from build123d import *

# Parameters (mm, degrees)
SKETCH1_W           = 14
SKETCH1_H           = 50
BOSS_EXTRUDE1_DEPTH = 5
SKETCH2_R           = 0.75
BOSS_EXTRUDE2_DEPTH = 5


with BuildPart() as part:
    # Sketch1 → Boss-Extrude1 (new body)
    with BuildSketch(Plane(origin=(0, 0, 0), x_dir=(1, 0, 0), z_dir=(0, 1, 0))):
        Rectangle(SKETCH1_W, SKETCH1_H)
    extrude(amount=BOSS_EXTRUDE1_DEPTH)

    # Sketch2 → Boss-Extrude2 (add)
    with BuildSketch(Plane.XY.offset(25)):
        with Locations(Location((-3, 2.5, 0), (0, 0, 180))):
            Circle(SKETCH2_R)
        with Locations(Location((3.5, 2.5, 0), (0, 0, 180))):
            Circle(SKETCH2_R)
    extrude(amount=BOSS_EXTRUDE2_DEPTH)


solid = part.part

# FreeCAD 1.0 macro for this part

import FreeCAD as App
import Part
import Sketcher
from FreeCAD import Vector
Q = App.Units.Quantity

doc = App.newDocument("Part")
body = doc.addObject("PartDesign::Body", "Body")

# Sketch on XZ plane
sketch1 = body.newObject("Sketcher::SketchObject", "Sketch")
sketch1.AttachmentSupport = (doc.getObject("XZ_Plane"), [""])
sketch1.MapMode = "FlatFace"
sketch1.addGeometry(Part.LineSegment(Vector(-7, -25, 0), Vector(-7, 25, 0)), False)
sketch1.addGeometry(Part.LineSegment(Vector(-7, 25, 0), Vector(7, 25, 0)), False)
sketch1.addGeometry(Part.LineSegment(Vector(7, 25, 0), Vector(7, -25, 0)), False)
sketch1.addGeometry(Part.LineSegment(Vector(7, -25, 0), Vector(-7, -25, 0)), False)
sketch1.addConstraint(Sketcher.Constraint("Coincident", 0, 2, 1, 1))
sketch1.addConstraint(Sketcher.Constraint("Coincident", 1, 2, 2, 1))
sketch1.addConstraint(Sketcher.Constraint("Coincident", 2, 2, 3, 1))
sketch1.addConstraint(Sketcher.Constraint("Coincident", 3, 2, 0, 1))
sketch1.addConstraint(Sketcher.Constraint("Vertical", 0))
sketch1.addConstraint(Sketcher.Constraint("Horizontal", 1))
sketch1.addConstraint(Sketcher.Constraint("Vertical", 2))
sketch1.addConstraint(Sketcher.Constraint("Horizontal", 3))
sketch1.addConstraint(Sketcher.Constraint("Symmetric", 0, 2, 2, 2, -1, 1))
sketch1.addConstraint(Sketcher.Constraint("DistanceX", 1, 1, 1, 2, Q("14 mm")))
sketch1.addConstraint(Sketcher.Constraint("DistanceY", 0, 1, 0, 2, Q("50 mm")))
pad1 = body.newObject("PartDesign::Pad", "Pad")
pad1.Profile = sketch1
pad1.Length = 5
pad1.Reversed = True

# Sketch on XY plane
sketch2 = body.newObject("Sketcher::SketchObject", "Sketch001")
sketch2.AttachmentSupport = (doc.getObject("XY_Plane"), [""])
sketch2.MapMode = "FlatFace"
sketch2.AttachmentOffset = App.Placement(Vector(0, 0, 25), App.Rotation())
sketch2.addGeometry(Part.Circle(Vector(-3, 2.5, 0), Vector(0, 0, 1), 0.75), False)
sketch2.addGeometry(Part.Circle(Vector(3.5, 2.5, 0), Vector(0, 0, 1), 0.75), False)
sketch2.addConstraint(Sketcher.Constraint("Equal", 0, 1))
sketch2.addConstraint(Sketcher.Constraint("Horizontal", 0, 3, 1, 3))
sketch2.addConstraint(Sketcher.Constraint("Diameter", 0, Q("1.5 mm")))
sketch2.addConstraint(Sketcher.Constraint("DistanceX", 0, 3, -1, 1, Q("3 mm")))
sketch2.addConstraint(Sketcher.Constraint("DistanceY", -1, 1, 0, 3, Q("2.5 mm")))
sketch2.addConstraint(Sketcher.Constraint("DistanceX", -1, 1, 1, 3, Q("3.5 mm")))
pad2 = body.newObject("PartDesign::Pad", "Pad001")
pad2.Profile = sketch2
pad2.Length = 5

doc.recompute()
